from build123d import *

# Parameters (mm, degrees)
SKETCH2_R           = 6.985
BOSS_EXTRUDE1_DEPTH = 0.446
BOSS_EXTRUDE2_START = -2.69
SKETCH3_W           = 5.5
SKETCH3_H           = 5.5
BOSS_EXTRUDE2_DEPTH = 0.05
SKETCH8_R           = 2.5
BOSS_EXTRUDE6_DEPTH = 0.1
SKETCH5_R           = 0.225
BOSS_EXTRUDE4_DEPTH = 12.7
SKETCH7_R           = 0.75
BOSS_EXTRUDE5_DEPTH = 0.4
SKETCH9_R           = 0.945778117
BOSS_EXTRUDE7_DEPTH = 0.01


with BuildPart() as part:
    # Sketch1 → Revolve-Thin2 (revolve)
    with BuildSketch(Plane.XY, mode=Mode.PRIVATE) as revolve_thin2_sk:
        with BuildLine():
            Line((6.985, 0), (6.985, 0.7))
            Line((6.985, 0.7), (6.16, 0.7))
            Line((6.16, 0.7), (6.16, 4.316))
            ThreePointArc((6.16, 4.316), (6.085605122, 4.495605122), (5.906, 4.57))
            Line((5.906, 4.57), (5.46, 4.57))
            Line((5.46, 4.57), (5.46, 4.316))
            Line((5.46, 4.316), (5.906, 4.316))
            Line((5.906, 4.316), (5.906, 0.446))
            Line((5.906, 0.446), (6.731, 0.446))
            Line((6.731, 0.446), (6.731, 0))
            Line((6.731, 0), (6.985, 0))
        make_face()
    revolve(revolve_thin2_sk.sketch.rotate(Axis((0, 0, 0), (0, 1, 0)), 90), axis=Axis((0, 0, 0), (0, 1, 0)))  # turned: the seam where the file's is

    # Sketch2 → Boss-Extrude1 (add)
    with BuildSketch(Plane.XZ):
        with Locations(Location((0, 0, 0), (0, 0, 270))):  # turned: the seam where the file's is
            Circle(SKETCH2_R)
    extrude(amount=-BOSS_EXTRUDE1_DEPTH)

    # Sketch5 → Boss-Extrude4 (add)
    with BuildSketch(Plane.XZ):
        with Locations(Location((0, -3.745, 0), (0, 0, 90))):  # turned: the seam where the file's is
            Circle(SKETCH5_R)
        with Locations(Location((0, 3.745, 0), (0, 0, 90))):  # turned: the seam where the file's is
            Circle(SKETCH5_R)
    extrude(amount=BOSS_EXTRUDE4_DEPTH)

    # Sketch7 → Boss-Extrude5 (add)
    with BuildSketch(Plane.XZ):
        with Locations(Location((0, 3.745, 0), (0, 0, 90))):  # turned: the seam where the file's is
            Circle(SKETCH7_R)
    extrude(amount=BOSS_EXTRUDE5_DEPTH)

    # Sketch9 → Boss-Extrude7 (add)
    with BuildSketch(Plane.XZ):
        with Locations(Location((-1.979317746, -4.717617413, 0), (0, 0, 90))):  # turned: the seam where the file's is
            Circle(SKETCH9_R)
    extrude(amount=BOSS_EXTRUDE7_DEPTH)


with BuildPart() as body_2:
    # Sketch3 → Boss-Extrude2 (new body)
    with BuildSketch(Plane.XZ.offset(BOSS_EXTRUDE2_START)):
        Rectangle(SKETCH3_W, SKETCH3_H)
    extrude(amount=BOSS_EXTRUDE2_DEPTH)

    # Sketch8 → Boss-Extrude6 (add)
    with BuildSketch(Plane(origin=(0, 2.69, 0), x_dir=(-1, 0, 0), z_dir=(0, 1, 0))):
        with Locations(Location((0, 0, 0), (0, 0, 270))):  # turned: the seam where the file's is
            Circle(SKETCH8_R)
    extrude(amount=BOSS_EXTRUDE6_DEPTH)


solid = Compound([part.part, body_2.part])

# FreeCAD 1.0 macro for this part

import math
import FreeCAD as App
import Part
import Sketcher
Q = App.Units.Quantity


def add_polygon(sketch, points):
    """Adds a closed chain of lines whose ends are joined by coincident constraints."""
    first, n = sketch.GeometryCount, len(points)
    for a, b in zip(points, points[1:] + points[:1]):
        sketch.addGeometry(Part.LineSegment(App.Vector(*a, 0), App.Vector(*b, 0)), False)
    for i in range(n):
        sketch.addConstraint(Sketcher.Constraint("Coincident", first + i, 2, first + (i + 1) % n, 1))

doc = App.newDocument("Part")
body = doc.addObject("PartDesign::Body", "Body")

sketch1 = body.newObject("Sketcher::SketchObject", "Sketch")
sketch1.AttachmentSupport = (doc.getObject("XY_Plane"), [""])
sketch1.MapMode = "FlatFace"
sketch1.addGeometry([
    Part.LineSegment(App.Vector(6.985, 0, 0), App.Vector(6.985, 0.7, 0)),
    Part.LineSegment(App.Vector(6.985, 0.7, 0), App.Vector(6.16, 0.7, 0)),
    Part.LineSegment(App.Vector(6.16, 0.7, 0), App.Vector(6.16, 4.316, 0)),
    Part.ArcOfCircle(Part.Circle(App.Vector(5.906, 4.316, 0), App.Vector(0, 0, 1), 0.254), math.radians(0), math.radians(90)),
    Part.LineSegment(App.Vector(5.906, 4.57, 0), App.Vector(5.46, 4.57, 0)),
    Part.LineSegment(App.Vector(5.46, 4.57, 0), App.Vector(5.46, 4.316, 0)),
    Part.LineSegment(App.Vector(5.46, 4.316, 0), App.Vector(5.906, 4.316, 0)),
    Part.LineSegment(App.Vector(5.906, 4.316, 0), App.Vector(5.906, 0.446, 0)),
    Part.LineSegment(App.Vector(5.906, 0.446, 0), App.Vector(6.731, 0.446, 0)),
    Part.LineSegment(App.Vector(6.731, 0.446, 0), App.Vector(6.731, 0, 0)),
    Part.LineSegment(App.Vector(6.731, 0, 0), App.Vector(6.985, 0, 0)),
], False)
sketch1.addConstraint([
    Sketcher.Constraint("Coincident", 0, 2, 1, 1),
    Sketcher.Constraint("Coincident", 1, 2, 2, 1),
    Sketcher.Constraint("Tangent", 2, 2, 3, 1),
    Sketcher.Constraint("Tangent", 3, 2, 4, 1),
    Sketcher.Constraint("Coincident", 4, 2, 5, 1),
    Sketcher.Constraint("Coincident", 5, 2, 6, 1),
    Sketcher.Constraint("Coincident", 6, 2, 7, 1),
    Sketcher.Constraint("Coincident", 7, 2, 8, 1),
    Sketcher.Constraint("Coincident", 8, 2, 9, 1),
    Sketcher.Constraint("Coincident", 9, 2, 10, 1),
    Sketcher.Constraint("Coincident", 10, 2, 0, 1),
    Sketcher.Constraint("Vertical", 0),
    Sketcher.Constraint("Horizontal", 1),
    Sketcher.Constraint("Vertical", 2),
    Sketcher.Constraint("Horizontal", 4),
    Sketcher.Constraint("Vertical", 5),
    Sketcher.Constraint("Horizontal", 6),
    Sketcher.Constraint("Vertical", 7),
    Sketcher.Constraint("Horizontal", 8),
    Sketcher.Constraint("Vertical", 9),
    Sketcher.Constraint("Horizontal", 10),
    Sketcher.Constraint("Coincident", 6, 2, 3, 3),
    Sketcher.Constraint("PointOnObject", 9, 2, -1),
    Sketcher.Constraint("Equal", 1, 8),
    Sketcher.Constraint("Equal", 6, 9),
    Sketcher.Constraint("DistanceY", 0, 1, 0, 2, Q("0.7 mm")),
    Sketcher.Constraint("Radius", 3, Q("0.254 mm")),
    Sketcher.Constraint("DistanceY", 7, 2, 7, 1, Q("3.87 mm")),
    Sketcher.Constraint("DistanceX", 4, 2, 2, 2, Q("0.7 mm")),
    Sketcher.Constraint("DistanceX", 1, 2, 1, 1, Q("0.825 mm")),
    Sketcher.Constraint("DistanceX", -1, 1, 1, 2, Q("6.16 mm")),
])
revolution = body.newObject("PartDesign::Revolution", "Revolution")
revolution.Profile = sketch1
revolution.ReferenceAxis = (sketch1, ["V_Axis"])
revolution.Angle = 360

sketch2 = body.newObject("Sketcher::SketchObject", "Sketch001")
sketch2.AttachmentSupport = (doc.getObject("XZ_Plane"), [""])
sketch2.MapMode = "FlatFace"
sketch2.addGeometry(Part.Circle(App.Vector(0, 0, 0), App.Vector(0, 0, 1), 6.985), False)
sketch2.addConstraint([
    Sketcher.Constraint("Coincident", 0, 3, -1, 1),
    Sketcher.Constraint("Diameter", 0, Q("13.97 mm")),
])
pad1 = body.newObject("PartDesign::Pad", "Pad")
pad1.Profile = sketch2
pad1.Length = 0.446
pad1.Reversed = True

sketch3 = body.newObject("Sketcher::SketchObject", "Sketch002")
sketch3.AttachmentSupport = (doc.getObject("XZ_Plane"), [""])
sketch3.MapMode = "FlatFace"
sketch3.addGeometry([
    Part.Circle(App.Vector(0, -3.745, 0), App.Vector(0, 0, 1), 0.225),
    Part.Circle(App.Vector(0, 3.745, 0), App.Vector(0, 0, 1), 0.225),
], False)
sketch3.addConstraint([
    Sketcher.Constraint("Equal", 0, 1),
    Sketcher.Constraint("Symmetric", 0, 3, 1, 3, -1, 1),
    Sketcher.Constraint("PointOnObject", 0, 3, -2),
    Sketcher.Constraint("Diameter", 0, Q("0.45 mm")),
    Sketcher.Constraint("DistanceY", 0, 3, 1, 3, Q("7.49 mm")),
])
pad2 = body.newObject("PartDesign::Pad", "Pad001")
pad2.Profile = sketch3
pad2.Length = 12.7

sketch4 = body.newObject("Sketcher::SketchObject", "Sketch003")
sketch4.AttachmentSupport = (doc.getObject("XZ_Plane"), [""])
sketch4.MapMode = "FlatFace"
sketch4.addGeometry(Part.Circle(App.Vector(0, 3.745, 0), App.Vector(0, 0, 1), 0.75), False)
sketch4.addConstraint([
    Sketcher.Constraint("PointOnObject", 0, 3, -2),
    Sketcher.Constraint("Diameter", 0, Q("1.5 mm")),
    Sketcher.Constraint("DistanceY", -1, 1, 0, 3, Q("3.745 mm")),
])
pad3 = body.newObject("PartDesign::Pad", "Pad002")
pad3.Profile = sketch4
pad3.Length = 0.4

sketch5 = body.newObject("Sketcher::SketchObject", "Sketch004")
sketch5.AttachmentSupport = (doc.getObject("XZ_Plane"), [""])
sketch5.MapMode = "FlatFace"
sketch5.addGeometry(Part.Circle(App.Vector(-1.979318, -4.717617, 0), App.Vector(0, 0, 1), 0.945778), False)
sketch5.addConstraint([
    Sketcher.Constraint("Diameter", 0, Q("1.891556 mm")),
    Sketcher.Constraint("DistanceX", 0, 3, -1, 1, Q("1.979318 mm")),
    Sketcher.Constraint("DistanceY", 0, 3, -1, 1, Q("4.717617 mm")),
])
pad4 = body.newObject("PartDesign::Pad", "Pad003")
pad4.Profile = sketch5
pad4.Length = 0.01
body2 = doc.addObject("PartDesign::Body", "Body001")

sketch6 = body2.newObject("Sketcher::SketchObject", "Sketch005")
sketch6.AttachmentSupport = (doc.getObject("XZ_Plane001"), [""])
sketch6.MapMode = "FlatFace"
sketch6.AttachmentOffset = App.Placement(App.Vector(0, 0, -2.69), App.Rotation())
add_polygon(sketch6, [(-2.75, 2.75), (-2.75, -2.75), (2.75, -2.75), (2.75, 2.75)])
sketch6.addConstraint([
    Sketcher.Constraint("Vertical", 0),
    Sketcher.Constraint("Horizontal", 1),
    Sketcher.Constraint("Vertical", 2),
    Sketcher.Constraint("Horizontal", 3),
    Sketcher.Constraint("Symmetric", 0, 2, 2, 2, -1, 1),
    Sketcher.Constraint("Equal", 3, 0),
    Sketcher.Constraint("DistanceX", 1, 1, 1, 2, Q("5.5 mm")),
])
pad5 = body2.newObject("PartDesign::Pad", "Pad004")
pad5.Profile = sketch6
pad5.Length = 0.05

sketch7 = body2.newObject("Sketcher::SketchObject", "Sketch006")
sketch7.AttachmentSupport = (doc.getObject("XZ_Plane001"), [""])
sketch7.MapMode = "FlatFace"
sketch7.AttachmentOffset = App.Placement(App.Vector(0, 0, -2.69), App.Rotation())
sketch7.addGeometry(Part.Circle(App.Vector(0, 0, 0), App.Vector(0, 0, 1), 2.5), False)
sketch7.addConstraint([
    Sketcher.Constraint("Coincident", 0, 3, -1, 1),
    Sketcher.Constraint("Diameter", 0, Q("5 mm")),
])
pad6 = body2.newObject("PartDesign::Pad", "Pad005")
pad6.Profile = sketch7
pad6.Length = 0.1
pad6.Reversed = True

doc.recompute()
